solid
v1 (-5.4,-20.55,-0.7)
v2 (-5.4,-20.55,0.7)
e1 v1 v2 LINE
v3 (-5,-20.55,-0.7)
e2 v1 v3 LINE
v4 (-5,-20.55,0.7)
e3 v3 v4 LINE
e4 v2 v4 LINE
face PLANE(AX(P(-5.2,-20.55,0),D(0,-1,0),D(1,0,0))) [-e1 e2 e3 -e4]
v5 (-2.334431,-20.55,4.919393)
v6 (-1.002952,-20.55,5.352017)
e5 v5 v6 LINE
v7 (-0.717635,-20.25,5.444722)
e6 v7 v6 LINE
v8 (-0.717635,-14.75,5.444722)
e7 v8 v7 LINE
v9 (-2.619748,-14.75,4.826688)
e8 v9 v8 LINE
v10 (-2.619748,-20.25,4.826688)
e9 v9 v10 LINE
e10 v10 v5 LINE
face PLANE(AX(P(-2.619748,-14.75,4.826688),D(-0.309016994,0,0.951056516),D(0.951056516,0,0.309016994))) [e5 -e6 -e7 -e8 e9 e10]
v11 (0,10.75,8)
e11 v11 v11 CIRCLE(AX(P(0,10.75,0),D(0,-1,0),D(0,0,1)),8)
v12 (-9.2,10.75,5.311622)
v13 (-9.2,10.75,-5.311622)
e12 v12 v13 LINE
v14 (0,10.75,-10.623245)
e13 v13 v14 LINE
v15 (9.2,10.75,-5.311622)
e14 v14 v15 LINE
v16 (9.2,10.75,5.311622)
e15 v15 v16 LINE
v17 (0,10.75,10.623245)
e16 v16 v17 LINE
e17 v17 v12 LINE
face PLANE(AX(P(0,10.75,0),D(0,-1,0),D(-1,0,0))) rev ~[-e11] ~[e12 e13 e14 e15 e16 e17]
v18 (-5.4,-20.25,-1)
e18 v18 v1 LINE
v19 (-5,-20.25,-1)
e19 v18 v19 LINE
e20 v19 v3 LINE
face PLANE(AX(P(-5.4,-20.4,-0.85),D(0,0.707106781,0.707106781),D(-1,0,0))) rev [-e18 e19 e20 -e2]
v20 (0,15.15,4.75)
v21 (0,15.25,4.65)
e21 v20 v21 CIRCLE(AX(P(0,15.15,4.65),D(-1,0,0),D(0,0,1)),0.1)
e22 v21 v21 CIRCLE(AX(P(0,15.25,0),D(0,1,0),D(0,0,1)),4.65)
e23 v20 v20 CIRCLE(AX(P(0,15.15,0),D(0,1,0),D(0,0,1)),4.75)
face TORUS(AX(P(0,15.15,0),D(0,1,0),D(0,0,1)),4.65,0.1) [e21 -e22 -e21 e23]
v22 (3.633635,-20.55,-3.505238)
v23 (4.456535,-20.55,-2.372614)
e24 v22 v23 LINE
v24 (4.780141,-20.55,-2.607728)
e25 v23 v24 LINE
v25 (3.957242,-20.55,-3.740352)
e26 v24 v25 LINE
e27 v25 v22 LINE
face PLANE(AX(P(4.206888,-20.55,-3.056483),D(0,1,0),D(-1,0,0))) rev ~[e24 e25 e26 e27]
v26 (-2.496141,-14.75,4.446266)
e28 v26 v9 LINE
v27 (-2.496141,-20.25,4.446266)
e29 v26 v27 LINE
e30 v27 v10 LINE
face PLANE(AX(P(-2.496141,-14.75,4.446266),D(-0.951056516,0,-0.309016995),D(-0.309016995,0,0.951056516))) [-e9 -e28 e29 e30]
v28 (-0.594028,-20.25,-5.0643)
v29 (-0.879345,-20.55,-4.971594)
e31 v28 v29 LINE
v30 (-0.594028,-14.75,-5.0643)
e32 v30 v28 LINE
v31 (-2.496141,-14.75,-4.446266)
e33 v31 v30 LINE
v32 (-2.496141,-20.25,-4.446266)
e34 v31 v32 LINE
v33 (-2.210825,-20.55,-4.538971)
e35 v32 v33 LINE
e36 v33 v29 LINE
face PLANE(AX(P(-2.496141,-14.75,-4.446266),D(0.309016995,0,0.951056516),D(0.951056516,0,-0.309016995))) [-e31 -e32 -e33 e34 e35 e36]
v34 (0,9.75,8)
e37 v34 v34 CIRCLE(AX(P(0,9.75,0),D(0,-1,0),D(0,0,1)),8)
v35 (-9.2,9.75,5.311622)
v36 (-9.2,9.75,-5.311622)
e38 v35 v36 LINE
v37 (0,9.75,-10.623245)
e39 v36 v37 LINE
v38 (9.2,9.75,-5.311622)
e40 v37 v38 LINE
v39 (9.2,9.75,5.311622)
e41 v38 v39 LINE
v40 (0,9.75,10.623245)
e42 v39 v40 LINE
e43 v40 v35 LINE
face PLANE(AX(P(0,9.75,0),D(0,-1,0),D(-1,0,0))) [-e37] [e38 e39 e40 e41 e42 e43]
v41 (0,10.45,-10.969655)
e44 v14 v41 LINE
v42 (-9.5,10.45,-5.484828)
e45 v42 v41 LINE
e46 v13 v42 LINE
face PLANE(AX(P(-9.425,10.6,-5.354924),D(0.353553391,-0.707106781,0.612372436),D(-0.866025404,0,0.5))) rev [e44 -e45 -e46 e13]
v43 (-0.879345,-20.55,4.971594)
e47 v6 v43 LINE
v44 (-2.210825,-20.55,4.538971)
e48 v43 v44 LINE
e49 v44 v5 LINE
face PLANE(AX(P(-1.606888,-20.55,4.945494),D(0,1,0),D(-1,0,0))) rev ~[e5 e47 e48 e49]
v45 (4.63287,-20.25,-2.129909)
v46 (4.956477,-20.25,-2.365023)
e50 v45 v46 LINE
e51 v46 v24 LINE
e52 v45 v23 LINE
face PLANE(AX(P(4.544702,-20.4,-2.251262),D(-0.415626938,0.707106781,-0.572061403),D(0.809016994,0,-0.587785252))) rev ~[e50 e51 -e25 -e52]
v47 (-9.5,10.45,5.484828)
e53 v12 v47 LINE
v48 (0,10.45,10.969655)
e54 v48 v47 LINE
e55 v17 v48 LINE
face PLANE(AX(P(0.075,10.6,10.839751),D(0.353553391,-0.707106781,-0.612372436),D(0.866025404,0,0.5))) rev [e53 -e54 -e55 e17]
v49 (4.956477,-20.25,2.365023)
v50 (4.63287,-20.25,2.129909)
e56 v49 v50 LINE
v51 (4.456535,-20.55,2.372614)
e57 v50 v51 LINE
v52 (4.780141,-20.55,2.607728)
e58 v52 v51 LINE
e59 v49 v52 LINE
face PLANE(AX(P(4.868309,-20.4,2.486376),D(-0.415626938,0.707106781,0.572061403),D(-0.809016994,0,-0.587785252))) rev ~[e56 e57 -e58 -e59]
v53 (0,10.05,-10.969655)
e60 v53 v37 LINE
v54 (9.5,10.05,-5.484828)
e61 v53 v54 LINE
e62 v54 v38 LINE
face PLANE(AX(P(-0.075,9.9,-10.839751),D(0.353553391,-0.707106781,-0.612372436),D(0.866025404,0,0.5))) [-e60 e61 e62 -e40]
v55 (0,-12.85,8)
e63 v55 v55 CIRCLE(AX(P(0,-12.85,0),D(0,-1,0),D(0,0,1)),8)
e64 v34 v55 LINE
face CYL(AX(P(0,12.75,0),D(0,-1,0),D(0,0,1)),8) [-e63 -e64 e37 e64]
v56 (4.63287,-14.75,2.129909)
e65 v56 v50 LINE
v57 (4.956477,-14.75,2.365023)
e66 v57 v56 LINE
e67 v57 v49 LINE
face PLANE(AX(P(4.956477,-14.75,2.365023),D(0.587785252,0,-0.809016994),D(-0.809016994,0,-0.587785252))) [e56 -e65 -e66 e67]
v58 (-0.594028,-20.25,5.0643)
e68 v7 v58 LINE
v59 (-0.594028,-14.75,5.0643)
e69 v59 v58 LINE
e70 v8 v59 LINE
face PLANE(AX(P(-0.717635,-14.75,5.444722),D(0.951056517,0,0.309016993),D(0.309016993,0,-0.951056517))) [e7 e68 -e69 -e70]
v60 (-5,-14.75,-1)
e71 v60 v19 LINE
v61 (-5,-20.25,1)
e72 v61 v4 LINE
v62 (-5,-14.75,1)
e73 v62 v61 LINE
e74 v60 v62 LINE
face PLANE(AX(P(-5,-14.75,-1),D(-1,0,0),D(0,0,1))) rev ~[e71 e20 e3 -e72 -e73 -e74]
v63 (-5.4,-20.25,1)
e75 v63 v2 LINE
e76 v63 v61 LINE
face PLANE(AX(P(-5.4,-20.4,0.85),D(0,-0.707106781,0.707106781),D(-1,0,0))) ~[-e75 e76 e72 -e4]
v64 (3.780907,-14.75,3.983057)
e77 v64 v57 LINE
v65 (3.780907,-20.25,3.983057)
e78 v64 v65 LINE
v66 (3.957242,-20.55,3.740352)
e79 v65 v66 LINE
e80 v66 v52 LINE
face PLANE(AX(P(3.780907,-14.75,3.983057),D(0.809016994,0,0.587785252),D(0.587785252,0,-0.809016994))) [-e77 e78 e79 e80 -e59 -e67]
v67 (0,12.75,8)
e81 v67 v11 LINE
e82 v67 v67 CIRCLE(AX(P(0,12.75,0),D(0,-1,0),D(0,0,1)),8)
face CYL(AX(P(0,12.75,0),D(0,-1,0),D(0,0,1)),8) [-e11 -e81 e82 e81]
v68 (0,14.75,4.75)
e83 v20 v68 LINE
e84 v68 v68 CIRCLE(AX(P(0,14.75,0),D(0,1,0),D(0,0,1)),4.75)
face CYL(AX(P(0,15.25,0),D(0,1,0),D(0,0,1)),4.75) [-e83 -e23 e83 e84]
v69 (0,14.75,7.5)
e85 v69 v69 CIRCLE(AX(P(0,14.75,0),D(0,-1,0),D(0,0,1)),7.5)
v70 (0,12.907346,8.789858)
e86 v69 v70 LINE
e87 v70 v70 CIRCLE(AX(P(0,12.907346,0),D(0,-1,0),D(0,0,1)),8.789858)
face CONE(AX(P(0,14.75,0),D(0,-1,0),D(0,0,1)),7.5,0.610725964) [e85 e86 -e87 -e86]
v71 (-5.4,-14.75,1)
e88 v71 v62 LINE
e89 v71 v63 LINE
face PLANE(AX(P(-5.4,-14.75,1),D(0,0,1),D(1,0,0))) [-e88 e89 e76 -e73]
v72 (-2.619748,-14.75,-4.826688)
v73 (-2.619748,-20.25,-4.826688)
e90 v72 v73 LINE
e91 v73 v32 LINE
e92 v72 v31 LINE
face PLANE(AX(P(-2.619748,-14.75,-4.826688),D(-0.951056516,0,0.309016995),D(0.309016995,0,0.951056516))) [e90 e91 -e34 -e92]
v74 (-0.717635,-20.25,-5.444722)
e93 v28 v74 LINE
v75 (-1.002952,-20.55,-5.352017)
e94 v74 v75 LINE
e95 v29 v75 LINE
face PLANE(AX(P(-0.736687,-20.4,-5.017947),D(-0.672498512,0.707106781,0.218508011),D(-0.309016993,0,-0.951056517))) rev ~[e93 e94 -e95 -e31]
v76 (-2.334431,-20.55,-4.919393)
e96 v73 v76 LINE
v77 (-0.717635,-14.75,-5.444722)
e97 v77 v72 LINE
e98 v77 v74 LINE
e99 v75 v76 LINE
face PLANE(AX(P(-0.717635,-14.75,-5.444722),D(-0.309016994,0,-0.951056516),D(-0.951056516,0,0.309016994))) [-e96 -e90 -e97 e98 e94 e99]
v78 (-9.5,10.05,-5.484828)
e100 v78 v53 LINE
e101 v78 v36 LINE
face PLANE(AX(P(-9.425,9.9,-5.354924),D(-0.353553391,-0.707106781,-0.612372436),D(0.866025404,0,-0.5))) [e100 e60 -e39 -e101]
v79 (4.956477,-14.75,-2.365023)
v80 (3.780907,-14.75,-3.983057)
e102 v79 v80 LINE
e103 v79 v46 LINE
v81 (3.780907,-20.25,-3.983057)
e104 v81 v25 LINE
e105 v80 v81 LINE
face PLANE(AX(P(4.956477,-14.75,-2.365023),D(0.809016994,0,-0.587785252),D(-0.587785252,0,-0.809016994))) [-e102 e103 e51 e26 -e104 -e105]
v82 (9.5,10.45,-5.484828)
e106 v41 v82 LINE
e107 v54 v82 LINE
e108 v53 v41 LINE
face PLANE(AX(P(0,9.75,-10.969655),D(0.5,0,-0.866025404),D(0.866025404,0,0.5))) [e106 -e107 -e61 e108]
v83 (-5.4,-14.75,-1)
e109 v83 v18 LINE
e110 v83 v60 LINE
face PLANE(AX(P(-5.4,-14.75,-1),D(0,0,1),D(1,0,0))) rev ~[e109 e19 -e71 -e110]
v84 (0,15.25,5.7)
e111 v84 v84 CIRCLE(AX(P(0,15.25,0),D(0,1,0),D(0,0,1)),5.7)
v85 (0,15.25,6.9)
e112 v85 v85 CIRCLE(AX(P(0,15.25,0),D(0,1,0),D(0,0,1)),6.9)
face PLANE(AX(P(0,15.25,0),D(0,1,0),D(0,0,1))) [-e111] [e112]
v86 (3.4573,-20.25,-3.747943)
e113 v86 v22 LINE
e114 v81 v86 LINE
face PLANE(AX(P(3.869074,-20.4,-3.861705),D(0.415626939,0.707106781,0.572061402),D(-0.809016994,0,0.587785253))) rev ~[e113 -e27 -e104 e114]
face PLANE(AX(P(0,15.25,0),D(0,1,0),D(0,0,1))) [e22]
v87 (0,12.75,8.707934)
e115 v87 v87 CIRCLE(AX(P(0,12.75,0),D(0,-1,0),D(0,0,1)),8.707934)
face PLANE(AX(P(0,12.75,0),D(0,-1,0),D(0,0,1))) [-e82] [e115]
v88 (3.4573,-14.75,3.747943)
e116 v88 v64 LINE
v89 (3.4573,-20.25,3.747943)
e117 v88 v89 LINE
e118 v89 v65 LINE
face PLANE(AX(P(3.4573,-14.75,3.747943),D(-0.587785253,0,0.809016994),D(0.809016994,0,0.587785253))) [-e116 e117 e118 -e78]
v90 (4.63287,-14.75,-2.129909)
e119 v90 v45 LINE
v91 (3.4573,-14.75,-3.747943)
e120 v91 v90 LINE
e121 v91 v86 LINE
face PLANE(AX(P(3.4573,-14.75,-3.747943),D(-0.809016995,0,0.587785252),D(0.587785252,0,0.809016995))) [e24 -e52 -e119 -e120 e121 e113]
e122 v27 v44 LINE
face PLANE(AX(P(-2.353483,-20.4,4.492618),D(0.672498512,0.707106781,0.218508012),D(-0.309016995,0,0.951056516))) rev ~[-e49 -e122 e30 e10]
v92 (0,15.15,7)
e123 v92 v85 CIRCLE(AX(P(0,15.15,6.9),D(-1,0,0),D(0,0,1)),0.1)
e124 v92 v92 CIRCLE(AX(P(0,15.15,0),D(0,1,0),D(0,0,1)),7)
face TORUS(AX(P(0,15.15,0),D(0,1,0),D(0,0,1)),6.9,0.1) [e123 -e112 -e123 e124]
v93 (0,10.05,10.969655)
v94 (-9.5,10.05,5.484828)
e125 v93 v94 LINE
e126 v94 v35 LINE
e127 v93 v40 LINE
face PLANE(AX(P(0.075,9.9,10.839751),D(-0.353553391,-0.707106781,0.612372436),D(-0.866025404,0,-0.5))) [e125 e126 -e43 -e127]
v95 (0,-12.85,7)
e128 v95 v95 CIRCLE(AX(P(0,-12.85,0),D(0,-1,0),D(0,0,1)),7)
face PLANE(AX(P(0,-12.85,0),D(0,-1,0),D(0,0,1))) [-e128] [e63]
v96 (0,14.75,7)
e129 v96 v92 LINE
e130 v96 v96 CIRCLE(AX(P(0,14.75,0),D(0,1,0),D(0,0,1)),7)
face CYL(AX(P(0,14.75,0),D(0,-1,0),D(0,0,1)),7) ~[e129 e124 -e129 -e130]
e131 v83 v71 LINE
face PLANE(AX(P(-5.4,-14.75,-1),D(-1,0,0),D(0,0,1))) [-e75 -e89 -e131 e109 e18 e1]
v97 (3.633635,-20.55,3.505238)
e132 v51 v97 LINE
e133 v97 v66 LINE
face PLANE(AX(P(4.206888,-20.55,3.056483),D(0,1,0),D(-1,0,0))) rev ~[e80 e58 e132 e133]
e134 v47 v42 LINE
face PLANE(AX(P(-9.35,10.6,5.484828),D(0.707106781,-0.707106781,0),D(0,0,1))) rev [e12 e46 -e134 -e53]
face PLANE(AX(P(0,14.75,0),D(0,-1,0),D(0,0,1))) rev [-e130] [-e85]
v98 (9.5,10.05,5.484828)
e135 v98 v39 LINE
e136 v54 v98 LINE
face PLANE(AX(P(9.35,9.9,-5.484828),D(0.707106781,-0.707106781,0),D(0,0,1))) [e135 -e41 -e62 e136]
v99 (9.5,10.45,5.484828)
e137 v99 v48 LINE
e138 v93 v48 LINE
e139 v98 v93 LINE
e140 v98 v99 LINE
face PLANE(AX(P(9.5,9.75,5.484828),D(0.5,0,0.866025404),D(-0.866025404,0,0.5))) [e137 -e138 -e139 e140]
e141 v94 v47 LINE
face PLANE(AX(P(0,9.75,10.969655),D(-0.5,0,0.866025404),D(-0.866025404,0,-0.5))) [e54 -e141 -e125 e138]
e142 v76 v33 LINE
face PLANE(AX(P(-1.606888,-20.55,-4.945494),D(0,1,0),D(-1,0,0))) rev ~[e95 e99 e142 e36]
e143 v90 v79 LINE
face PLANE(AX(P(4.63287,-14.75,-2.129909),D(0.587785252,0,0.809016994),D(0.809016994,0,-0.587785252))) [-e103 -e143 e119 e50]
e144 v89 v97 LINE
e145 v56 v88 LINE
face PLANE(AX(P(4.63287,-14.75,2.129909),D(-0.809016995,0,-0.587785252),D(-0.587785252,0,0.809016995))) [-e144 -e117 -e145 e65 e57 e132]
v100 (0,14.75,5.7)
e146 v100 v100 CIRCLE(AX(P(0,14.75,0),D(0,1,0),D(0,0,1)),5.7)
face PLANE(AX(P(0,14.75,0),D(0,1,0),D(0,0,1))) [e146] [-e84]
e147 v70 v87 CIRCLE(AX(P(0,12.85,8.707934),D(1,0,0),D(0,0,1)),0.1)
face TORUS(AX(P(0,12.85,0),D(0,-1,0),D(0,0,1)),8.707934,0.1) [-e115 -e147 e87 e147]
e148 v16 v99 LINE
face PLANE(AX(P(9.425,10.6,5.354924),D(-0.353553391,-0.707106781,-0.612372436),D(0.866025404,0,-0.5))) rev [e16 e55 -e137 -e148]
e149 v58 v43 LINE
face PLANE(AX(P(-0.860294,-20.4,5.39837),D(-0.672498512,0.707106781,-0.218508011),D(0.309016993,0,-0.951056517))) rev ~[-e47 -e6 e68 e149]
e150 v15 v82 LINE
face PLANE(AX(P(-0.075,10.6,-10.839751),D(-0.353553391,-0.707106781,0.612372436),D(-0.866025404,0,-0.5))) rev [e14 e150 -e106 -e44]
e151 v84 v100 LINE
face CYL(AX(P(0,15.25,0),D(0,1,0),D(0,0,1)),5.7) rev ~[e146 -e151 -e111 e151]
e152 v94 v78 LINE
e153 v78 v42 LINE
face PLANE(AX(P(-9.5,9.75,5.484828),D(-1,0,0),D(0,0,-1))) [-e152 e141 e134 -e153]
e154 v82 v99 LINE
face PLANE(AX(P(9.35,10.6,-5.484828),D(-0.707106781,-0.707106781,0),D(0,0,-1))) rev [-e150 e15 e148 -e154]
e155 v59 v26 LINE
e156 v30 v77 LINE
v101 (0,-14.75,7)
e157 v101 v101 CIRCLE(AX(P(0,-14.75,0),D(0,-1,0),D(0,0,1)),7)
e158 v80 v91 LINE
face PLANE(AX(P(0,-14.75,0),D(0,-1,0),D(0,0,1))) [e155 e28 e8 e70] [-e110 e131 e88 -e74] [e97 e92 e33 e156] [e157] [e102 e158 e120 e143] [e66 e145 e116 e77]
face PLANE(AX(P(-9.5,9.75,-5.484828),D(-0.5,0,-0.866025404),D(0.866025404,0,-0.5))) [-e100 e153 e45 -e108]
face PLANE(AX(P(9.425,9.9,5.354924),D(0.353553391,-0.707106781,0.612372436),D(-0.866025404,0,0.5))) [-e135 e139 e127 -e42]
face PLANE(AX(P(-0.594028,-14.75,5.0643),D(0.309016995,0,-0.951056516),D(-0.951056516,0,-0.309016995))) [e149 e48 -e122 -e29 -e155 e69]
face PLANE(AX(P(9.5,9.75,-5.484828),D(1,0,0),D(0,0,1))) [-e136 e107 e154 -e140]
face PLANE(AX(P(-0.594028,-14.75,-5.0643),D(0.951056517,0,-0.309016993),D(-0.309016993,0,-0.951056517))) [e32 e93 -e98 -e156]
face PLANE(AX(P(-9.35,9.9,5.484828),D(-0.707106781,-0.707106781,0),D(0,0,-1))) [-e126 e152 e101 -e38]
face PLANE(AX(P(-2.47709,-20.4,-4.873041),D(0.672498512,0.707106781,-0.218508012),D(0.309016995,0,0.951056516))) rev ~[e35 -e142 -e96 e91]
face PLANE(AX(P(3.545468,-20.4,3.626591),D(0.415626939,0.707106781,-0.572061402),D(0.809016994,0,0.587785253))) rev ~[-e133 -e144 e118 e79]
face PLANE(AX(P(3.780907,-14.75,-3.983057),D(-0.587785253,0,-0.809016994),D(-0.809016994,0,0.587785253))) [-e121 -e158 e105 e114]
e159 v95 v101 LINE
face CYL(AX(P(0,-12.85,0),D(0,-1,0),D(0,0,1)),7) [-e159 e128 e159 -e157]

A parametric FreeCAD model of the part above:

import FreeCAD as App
import Part
import Sketcher
Q = App.Units.Quantity


def edges_at(feature, points):
    """Names of the edges that pass closest to the given points."""
    edges = feature.Shape.Edges
    near = lambda p: min(range(len(edges)), key=lambda i: edges[i].distToShape(Part.Vertex(*p))[0])
    return sorted({f"Edge{near(p) + 1}" for p in points})


def add_polygon(sketch, points):
    """Adds a closed chain of lines whose ends are joined by coincident constraints."""
    first, n = sketch.GeometryCount, len(points)
    for a, b in zip(points, points[1:] + points[:1]):
        sketch.addGeometry(Part.LineSegment(App.Vector(*a, 0), App.Vector(*b, 0)), False)
    for i in range(n):
        sketch.addConstraint(Sketcher.Constraint("Coincident", first + i, 2, first + (i + 1) % n, 1))

doc = App.newDocument("Part")
body = doc.addObject("PartDesign::Body", "Body")

sketch1 = body.newObject("Sketcher::SketchObject", "Sketch")
sketch1.AttachmentSupport = (doc.getObject("XY_Plane"), [""])
sketch1.MapMode = "FlatFace"
add_polygon(sketch1, [(0, 14.8), (-7.5, 14.8), (-8.9, 12.8), (-8, 12.8), (-8, -12.8), (-7, -12.8), (-7, -14.8), (0, -14.8)])
sketch1.addConstraint([
    Sketcher.Constraint("Horizontal", 0),
    Sketcher.Constraint("Horizontal", 2),
    Sketcher.Constraint("Vertical", 3),
    Sketcher.Constraint("Horizontal", 4),
    Sketcher.Constraint("Vertical", 5),
    Sketcher.Constraint("Horizontal", 6),
    Sketcher.Constraint("Vertical", 7),
    Sketcher.Constraint("Symmetric", 6, 2, 7, 2, -1, 1),
    Sketcher.Constraint("DistanceX", 4, 1, 4, 2, 1.0),
    Sketcher.Constraint("DistanceX", 6, 1, 6, 2, 7.0),
    Sketcher.Constraint("DistanceX", 0, 2, 0, 1, 7.5),
    Sketcher.Constraint("DistanceX", 2, 1, 2, 2, 0.9),
    Sketcher.Constraint("DistanceY", 3, 2, 3, 1, 25.6),
    Sketcher.Constraint("DistanceY", 5, 2, 5, 1, 1.9),
    Sketcher.Constraint("DistanceY", 7, 1, 7, 2, 29.5),
])
revolution = body.newObject("PartDesign::Revolution", "Revolution")
revolution.Profile = sketch1
revolution.ReferenceAxis = (sketch1, ["V_Axis"])
revolution.Angle = 360

sketch2 = body.newObject("Sketcher::SketchObject", "Sketch001")
sketch2.AttachmentSupport = (doc.getObject("XZ_Plane"), [""])
sketch2.MapMode = "FlatFace"
sketch2.AttachmentOffset = App.Placement(App.Vector(0, 0, 14.75), App.Rotation())
add_polygon(sketch2, [(-5.4, 1), (-5.4, -1), (-5, -1), (-5, 1)])
add_polygon(sketch2, [(-0.59, 5.06), (-0.72, 5.44), (-2.62, 4.83), (-2.5, 4.45)])
add_polygon(sketch2, [(4.63, 2.13), (4.96, 2.37), (3.78, 3.98), (3.46, 3.75)])
add_polygon(sketch2, [(3.46, -3.75), (3.78, -3.98), (4.96, -2.37), (4.63, -2.13)])
add_polygon(sketch2, [(-2.5, -4.45), (-2.62, -4.83), (-0.72, -5.44), (-0.59, -5.06)])
sketch2.addConstraint([
    Sketcher.Constraint("Vertical", 0),
    Sketcher.Constraint("Horizontal", 1),
    Sketcher.Constraint("Vertical", 2),
    Sketcher.Constraint("Horizontal", 3),
    Sketcher.Constraint("Symmetric", 9, 2, 12, 2, -1),
    Sketcher.Constraint("Symmetric", 8, 2, 13, 2, -1),
    Sketcher.Constraint("Symmetric", 11, 2, 14, 2, -1),
    Sketcher.Constraint("Symmetric", 10, 2, 15, 2, -1),
    Sketcher.Constraint("Symmetric", 5, 2, 16, 2, -1),
    Sketcher.Constraint("Symmetric", 4, 2, 17, 2, -1),
    Sketcher.Constraint("Symmetric", 7, 2, 18, 2, -1),
    Sketcher.Constraint("Symmetric", 6, 2, 19, 2, -1),
    Sketcher.Constraint("Perpendicular", 4, 5),
    Sketcher.Constraint("Perpendicular", 5, 6),
    Sketcher.Constraint("Perpendicular", 6, 7),
    Sketcher.Constraint("Perpendicular", 8, 9),
    Sketcher.Constraint("Perpendicular", 9, 10),
    Sketcher.Constraint("Perpendicular", 10, 11),
    Sketcher.Constraint("Equal", 6, 8),
    Sketcher.Constraint("Equal", 7, 9),
    Sketcher.Constraint("DistanceY", 0, 2, 0, 1, 2.0),
    Sketcher.Constraint("Angle", 4, Q("108 deg")),
    Sketcher.Constraint("Angle", 8, Q("36 deg")),
    Sketcher.Constraint("Distance", 5, 2.0),
    Sketcher.Constraint("DistanceX", 1, 1, 1, 2, 0.4),
    Sketcher.Constraint("DistanceY", 0, 2, -1, 1, 1.0),
    Sketcher.Constraint("DistanceX", 1, 2, -1, 1, 5.0),
    Sketcher.Constraint("Distance", 4, 0.4),
    Sketcher.Constraint("DistanceY", 12, 2, 10, 2, 7.731001),
    Sketcher.Constraint("DistanceY", -1, 1, 7, 2, 5.0643),
    Sketcher.Constraint("DistanceX", -1, 1, 10, 2, 3.4573),
    Sketcher.Constraint("DistanceX", 7, 2, 11, 2, 5.226899),
])
pad1 = body.newObject("PartDesign::Pad", "Pad")
pad1.Profile = sketch2
pad1.Length = 5.8
doc.recompute()

chamfer = body.newObject("PartDesign::Chamfer", "Chamfer")
chamfer.Base = (pad1, edges_at(pad1, [
    (-5.2, -20.55, -1),
    (-5.2, -20.55, 1),
    (-2.558, -20.55, 4.636),
    (-0.656, -20.55, 5.255),
    (3.619, -20.55, 3.866),
    (4.795, -20.55, 2.247),
    (4.795, -20.55, -2.247),
    (3.619, -20.55, -3.866),
    (-0.656, -20.55, -5.255),
    (-2.558, -20.55, -4.636),
]))
chamfer.Size = 0.3

sketch3 = body.newObject("Sketcher::SketchObject", "Sketch002")
sketch3.AttachmentSupport = (doc.getObject("XZ_Plane"), [""])
sketch3.MapMode = "FlatFace"
sketch3.AttachmentOffset = App.Placement(App.Vector(0, 0, -14.75), App.Rotation())
sketch3.addGeometry(Part.Circle(App.Vector(0, 0, 0), App.Vector(0, 0, 1), 7), False)
sketch3.addConstraint([
    Sketcher.Constraint("Coincident", 0, 3, -1, 1),
    Sketcher.Constraint("Diameter", 0, 14.0),
])
pad2 = body.newObject("PartDesign::Pad", "Pad001")
pad2.Profile = sketch3
pad2.Length = 0.5
pad2.Reversed = True

sketch4 = body.newObject("Sketcher::SketchObject", "Sketch003")
sketch4.AttachmentSupport = (doc.getObject("XZ_Plane"), [""])
sketch4.MapMode = "FlatFace"
sketch4.AttachmentOffset = App.Placement(App.Vector(0, 0, -15.25), App.Rotation())
sketch4.addGeometry([
    Part.Circle(App.Vector(0, 0, 0), App.Vector(0, 0, 1), 5.7),
    Part.Circle(App.Vector(0, 0, 0), App.Vector(0, 0, 1), 4.8),
], False)
sketch4.addConstraint([
    Sketcher.Constraint("Coincident", 0, 3, -1, 1),
    Sketcher.Constraint("Coincident", 1, 3, -1, 1),
    Sketcher.Constraint("Diameter", 0, 11.4),
    Sketcher.Constraint("Diameter", 1, 9.5),
])
pocket1 = body.newObject("PartDesign::Pocket", "Pocket")
pocket1.Profile = sketch4
pocket1.Length = 0.5
pocket1.Reversed = True
doc.recompute()

fillet = body.newObject("PartDesign::Fillet", "Fillet")
fillet.Base = (pocket1, edges_at(pocket1, [(0, 15.25, -7), (0, 15.25, -4.75)]))
fillet.Radius = 0.1
doc.recompute()

fillet2 = body.newObject("PartDesign::Fillet", "Fillet001")
fillet2.Base = (fillet, edges_at(fillet, [(0, 12.75, -8.9)]))
fillet2.Radius = 0.1

sketch5 = body.newObject("Sketcher::SketchObject", "Sketch004")
sketch5.AttachmentSupport = (doc.getObject("XZ_Plane"), [""])
sketch5.MapMode = "FlatFace"
sketch5.AttachmentOffset = App.Placement(App.Vector(0, 0, -9.75), App.Rotation())
add_polygon(sketch5, [(0, -11), (10, -5), (10, 5), (0, 11), (-10, 5), (-10, -5)])
sketch5.addGeometry(Part.Circle(App.Vector(0, 0, 0), App.Vector(0, 0, 1), 8), False)
sketch5.addConstraint([
    Sketcher.Constraint("Vertical", 1),
    Sketcher.Constraint("Vertical", 4),
    Sketcher.Constraint("Coincident", 6, 3, -1, 1),
    Sketcher.Constraint("Symmetric", 0, 2, 3, 2, -1, 1),
    Sketcher.Constraint("Symmetric", 2, 2, 5, 2, -1, 1),
    Sketcher.Constraint("PointOnObject", 2, 2, -2),
    Sketcher.Constraint("Parallel", 2, 5),
    Sketcher.Constraint("Horizontal", 1, 2, 3, 2),
    Sketcher.Constraint("Diameter", 6, 16.0),
    Sketcher.Constraint("Angle", 0, Q("30 deg")),
    Sketcher.Constraint("DistanceX", 3, 2, 1, 2, 19.0),
    Sketcher.Constraint("DistanceY", 1, 1, 1, 2, 10.969655),
])
pad3 = body.newObject("PartDesign::Pad", "Pad002")
pad3.Profile = sketch5
pad3.Length = 1
pad3.Reversed = True
doc.recompute()

chamfer2 = body.newObject("PartDesign::Chamfer", "Chamfer001")
chamfer2.Base = (pad3, edges_at(pad3, [
    (-4.75, 9.75, -8.227),
    (4.75, 9.75, -8.227),
    (9.5, 9.75, 0),
    (4.75, 9.75, 8.227),
    (-4.75, 9.75, 8.227),
    (-9.5, 9.75, 0),
    (-4.75, 10.75, -8.227),
    (4.75, 10.75, -8.227),
    (9.5, 10.75, 0),
    (4.75, 10.75, 8.227),
    (-4.75, 10.75, 8.227),
    (-9.5, 10.75, 0),
]))
chamfer2.Size = 0.3

doc.recompute()
